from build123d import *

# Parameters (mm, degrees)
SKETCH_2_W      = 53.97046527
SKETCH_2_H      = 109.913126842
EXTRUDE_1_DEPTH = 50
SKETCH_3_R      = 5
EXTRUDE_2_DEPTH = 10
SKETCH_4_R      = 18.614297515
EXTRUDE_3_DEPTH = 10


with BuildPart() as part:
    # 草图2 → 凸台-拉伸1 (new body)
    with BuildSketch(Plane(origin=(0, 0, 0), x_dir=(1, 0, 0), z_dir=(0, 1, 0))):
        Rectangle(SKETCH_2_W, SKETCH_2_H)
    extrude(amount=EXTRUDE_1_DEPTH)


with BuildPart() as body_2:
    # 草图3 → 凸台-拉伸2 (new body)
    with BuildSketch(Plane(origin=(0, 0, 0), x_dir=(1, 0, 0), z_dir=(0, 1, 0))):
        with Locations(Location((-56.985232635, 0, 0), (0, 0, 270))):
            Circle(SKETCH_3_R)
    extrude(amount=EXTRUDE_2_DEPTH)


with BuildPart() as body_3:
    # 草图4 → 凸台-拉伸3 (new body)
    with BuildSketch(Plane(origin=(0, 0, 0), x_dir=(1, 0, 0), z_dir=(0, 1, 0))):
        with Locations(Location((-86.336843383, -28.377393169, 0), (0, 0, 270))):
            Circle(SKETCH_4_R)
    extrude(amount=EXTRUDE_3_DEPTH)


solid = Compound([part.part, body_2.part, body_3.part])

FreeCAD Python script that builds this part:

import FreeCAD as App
import Part
import Sketcher
from FreeCAD import Vector

doc = App.newDocument("Part")
body = doc.addObject("PartDesign::Body", "Body")

# Sketch on XZ plane
sketch1 = body.newObject("Sketcher::SketchObject", "Sketch")
sketch1.AttachmentSupport = (doc.getObject("XZ_Plane"), [""])
sketch1.MapMode = "FlatFace"
sketch1.addGeometry([
    Part.LineSegment(Vector(-27, -55, 0), Vector(-27, 55, 0)),
    Part.LineSegment(Vector(-27, 55, 0), Vector(27, 55, 0)),
    Part.LineSegment(Vector(27, 55, 0), Vector(27, -55, 0)),
    Part.LineSegment(Vector(27, -55, 0), Vector(-27, -55, 0)),
], False)
sketch1.addConstraint([
    Sketcher.Constraint("Coincident", 0, 2, 1, 1),
    Sketcher.Constraint("Coincident", 1, 2, 2, 1),
    Sketcher.Constraint("Coincident", 2, 2, 3, 1),
    Sketcher.Constraint("Coincident", 3, 2, 0, 1),
    Sketcher.Constraint("Vertical", 0),
    Sketcher.Constraint("Horizontal", 1),
    Sketcher.Constraint("Vertical", 2),
    Sketcher.Constraint("Horizontal", 3),
    Sketcher.Constraint("Symmetric", 0, 2, 2, 2, -1, 1),
    Sketcher.Constraint("DistanceX", 1, 1, 1, 2, 53.970465),
    Sketcher.Constraint("DistanceY", 0, 1, 0, 2, 109.913127),
])
pad1 = body.newObject("PartDesign::Pad", "Pad")
pad1.Profile = sketch1
pad1.Length = 50
pad1.Reversed = True
body2 = doc.addObject("PartDesign::Body", "Body001")

# Sketch on XZ plane
sketch2 = body2.newObject("Sketcher::SketchObject", "Sketch001")
sketch2.AttachmentSupport = (doc.getObject("XZ_Plane001"), [""])
sketch2.MapMode = "FlatFace"
sketch2.addGeometry(Part.Circle(Vector(-57, 0, 0), Vector(0, 0, 1), 5), False)
sketch2.addConstraint([
    Sketcher.Constraint("PointOnObject", 0, 3, -1),
    Sketcher.Constraint("Diameter", 0, 10.0),
    Sketcher.Constraint("DistanceX", 0, 3, -1, 1, 56.985233),
])
pad2 = body2.newObject("PartDesign::Pad", "Pad001")
pad2.Profile = sketch2
pad2.Length = 10
pad2.Reversed = True
body3 = doc.addObject("PartDesign::Body", "Body002")

# Sketch on XZ plane
sketch3 = body3.newObject("Sketcher::SketchObject", "Sketch002")
sketch3.AttachmentSupport = (doc.getObject("XZ_Plane002"), [""])
sketch3.MapMode = "FlatFace"
sketch3.addGeometry(Part.Circle(Vector(-86, 28, 0), Vector(0, 0, 1), 19), False)
sketch3.addConstraint([
    Sketcher.Constraint("Diameter", 0, 37.228595),
    Sketcher.Constraint("DistanceX", 0, 3, -1, 1, 86.336843),
    Sketcher.Constraint("DistanceY", -1, 1, 0, 3, 28.377393),
])
pad3 = body3.newObject("PartDesign::Pad", "Pad002")
pad3.Profile = sketch3
pad3.Length = 10
pad3.Reversed = True

doc.recompute()
